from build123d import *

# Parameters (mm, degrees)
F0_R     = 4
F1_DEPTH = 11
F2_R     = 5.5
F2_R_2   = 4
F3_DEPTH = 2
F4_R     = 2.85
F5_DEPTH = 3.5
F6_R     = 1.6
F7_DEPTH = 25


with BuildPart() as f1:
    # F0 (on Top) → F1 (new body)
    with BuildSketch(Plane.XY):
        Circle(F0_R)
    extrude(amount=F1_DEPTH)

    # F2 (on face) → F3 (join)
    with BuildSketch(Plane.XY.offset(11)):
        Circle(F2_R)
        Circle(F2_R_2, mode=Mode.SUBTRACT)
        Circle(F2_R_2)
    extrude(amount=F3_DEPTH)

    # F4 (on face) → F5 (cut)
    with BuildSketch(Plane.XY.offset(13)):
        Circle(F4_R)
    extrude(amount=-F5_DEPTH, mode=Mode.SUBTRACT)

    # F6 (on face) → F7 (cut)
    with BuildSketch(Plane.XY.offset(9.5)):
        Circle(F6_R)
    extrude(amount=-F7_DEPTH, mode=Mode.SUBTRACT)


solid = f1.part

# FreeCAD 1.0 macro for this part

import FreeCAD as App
import Part
import Sketcher
Q = App.Units.Quantity

doc = App.newDocument("Part")
body = doc.addObject("PartDesign::Body", "Body")

sketch1 = doc.addObject("Sketcher::SketchObject", "Sketch")
body.addObject(sketch1)
sketch1.AttachmentSupport = (doc.XY_Plane, [""])
sketch1.MapMode = "FlatFace"
sketch1.addGeometry(Part.Circle(App.Vector(0, 0, 0), App.Vector(0, 0, 1), 4), False)
sketch1.addConstraint(Sketcher.Constraint("Coincident", 0, 3, -1, 1))
sketch1.addConstraint(Sketcher.Constraint("Diameter", 0, Q("8 mm")))
pad1 = doc.addObject("PartDesign::Pad", "Pad")
body.addObject(pad1)
pad1.Profile = sketch1
pad1.Length = 11

sketch2 = doc.addObject("Sketcher::SketchObject", "Sketch001")
body.addObject(sketch2)
sketch2.AttachmentSupport = (doc.XY_Plane, [""])
sketch2.MapMode = "FlatFace"
sketch2.AttachmentOffset = App.Placement(App.Vector(0, 0, 11), App.Rotation())
sketch2.addGeometry(Part.Circle(App.Vector(0, 0, 0), App.Vector(0, 0, 1), 6), False)
sketch2.addConstraint(Sketcher.Constraint("Coincident", 0, 3, -1, 1))
sketch2.addConstraint(Sketcher.Constraint("Diameter", 0, Q("11 mm")))
pad2 = doc.addObject("PartDesign::Pad", "Pad001")
body.addObject(pad2)
pad2.Profile = sketch2
pad2.Length = 2

sketch3 = doc.addObject("Sketcher::SketchObject", "Sketch002")
body.addObject(sketch3)
sketch3.AttachmentSupport = (doc.XY_Plane, [""])
sketch3.MapMode = "FlatFace"
sketch3.AttachmentOffset = App.Placement(App.Vector(0, 0, 13), App.Rotation())
sketch3.addGeometry(Part.Circle(App.Vector(0, 0, 0), App.Vector(0, 0, 1), 2.9), False)
sketch3.addConstraint(Sketcher.Constraint("Coincident", 0, 3, -1, 1))
sketch3.addConstraint(Sketcher.Constraint("Diameter", 0, Q("5.7 mm")))
pocket1 = doc.addObject("PartDesign::Pocket", "Pocket")
body.addObject(pocket1)
pocket1.Profile = sketch3
pocket1.Length = 3.5

sketch4 = doc.addObject("Sketcher::SketchObject", "Sketch003")
body.addObject(sketch4)
sketch4.AttachmentSupport = (doc.XY_Plane, [""])
sketch4.MapMode = "FlatFace"
sketch4.AttachmentOffset = App.Placement(App.Vector(0, 0, 9.5), App.Rotation())
sketch4.addGeometry(Part.Circle(App.Vector(0, 0, 0), App.Vector(0, 0, 1), 1.6), False)
sketch4.addConstraint(Sketcher.Constraint("Coincident", 0, 3, -1, 1))
sketch4.addConstraint(Sketcher.Constraint("Diameter", 0, Q("3.2 mm")))
pocket2 = doc.addObject("PartDesign::Pocket", "Pocket001")
body.addObject(pocket2)
pocket2.Profile = sketch4
pocket2.Length = 25

doc.recompute()
